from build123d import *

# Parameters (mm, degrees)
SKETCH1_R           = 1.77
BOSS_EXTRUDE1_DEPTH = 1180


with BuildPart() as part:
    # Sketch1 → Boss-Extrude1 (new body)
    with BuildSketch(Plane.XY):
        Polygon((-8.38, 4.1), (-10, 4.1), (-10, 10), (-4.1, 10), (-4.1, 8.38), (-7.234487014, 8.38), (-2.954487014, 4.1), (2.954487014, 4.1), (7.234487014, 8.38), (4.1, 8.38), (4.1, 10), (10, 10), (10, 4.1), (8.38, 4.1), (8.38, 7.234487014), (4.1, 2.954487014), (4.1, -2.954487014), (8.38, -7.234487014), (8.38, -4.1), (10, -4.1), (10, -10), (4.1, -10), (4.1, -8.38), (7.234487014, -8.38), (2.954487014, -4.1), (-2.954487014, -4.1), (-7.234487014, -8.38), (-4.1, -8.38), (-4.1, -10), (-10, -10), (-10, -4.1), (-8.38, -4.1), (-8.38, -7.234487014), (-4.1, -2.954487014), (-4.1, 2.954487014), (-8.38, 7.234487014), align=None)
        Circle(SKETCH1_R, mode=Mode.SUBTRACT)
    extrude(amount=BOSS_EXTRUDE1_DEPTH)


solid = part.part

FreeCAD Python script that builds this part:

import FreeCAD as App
import Part
import Sketcher

V = App.Vector
Q = App.Units.Quantity

doc = App.newDocument("Part")
body = doc.addObject("PartDesign::Body", "Body")

sketch1 = body.newObject("Sketcher::SketchObject", "Sketch")
sketch1.AttachmentSupport = (doc.getObject("XY_Plane"), [""])
sketch1.MapMode = "FlatFace"
sketch1.addGeometry(Part.LineSegment(V(-10, 4.1, 0), V(-8.4, 4.1, 0)), False)
sketch1.addGeometry(Part.LineSegment(V(-8.4, 4.1, 0), V(-8.4, 7.2, 0)), False)
sketch1.addGeometry(Part.LineSegment(V(-8.4, 7.2, 0), V(-4.1, 3, 0)), False)
sketch1.addGeometry(Part.LineSegment(V(-4.1, 3, 0), V(-4.1, -3, 0)), False)
sketch1.addGeometry(Part.LineSegment(V(-4.1, -3, 0), V(-8.4, -7.2, 0)), False)
sketch1.addGeometry(Part.LineSegment(V(-8.4, -7.2, 0), V(-8.4, -4.1, 0)), False)
sketch1.addGeometry(Part.LineSegment(V(-8.4, -4.1, 0), V(-10, -4.1, 0)), False)
sketch1.addGeometry(Part.LineSegment(V(-10, -4.1, 0), V(-10, -10, 0)), False)
sketch1.addGeometry(Part.LineSegment(V(-10, -10, 0), V(-4.1, -10, 0)), False)
sketch1.addGeometry(Part.LineSegment(V(-4.1, -10, 0), V(-4.1, -8.4, 0)), False)
sketch1.addGeometry(Part.LineSegment(V(-4.1, -8.4, 0), V(-7.2, -8.4, 0)), False)
sketch1.addGeometry(Part.LineSegment(V(-7.2, -8.4, 0), V(-3, -4.1, 0)), False)
sketch1.addGeometry(Part.LineSegment(V(-3, -4.1, 0), V(3, -4.1, 0)), False)
sketch1.addGeometry(Part.LineSegment(V(3, -4.1, 0), V(7.2, -8.4, 0)), False)
sketch1.addGeometry(Part.LineSegment(V(7.2, -8.4, 0), V(4.1, -8.4, 0)), False)
sketch1.addGeometry(Part.LineSegment(V(4.1, -8.4, 0), V(4.1, -10, 0)), False)
sketch1.addGeometry(Part.LineSegment(V(4.1, -10, 0), V(10, -10, 0)), False)
sketch1.addGeometry(Part.LineSegment(V(10, -10, 0), V(10, -4.1, 0)), False)
sketch1.addGeometry(Part.LineSegment(V(10, -4.1, 0), V(8.4, -4.1, 0)), False)
sketch1.addGeometry(Part.LineSegment(V(8.4, -4.1, 0), V(8.4, -7.2, 0)), False)
sketch1.addGeometry(Part.LineSegment(V(8.4, -7.2, 0), V(4.1, -3, 0)), False)
sketch1.addGeometry(Part.LineSegment(V(4.1, -3, 0), V(4.1, 3, 0)), False)
sketch1.addGeometry(Part.LineSegment(V(4.1, 3, 0), V(8.4, 7.2, 0)), False)
sketch1.addGeometry(Part.LineSegment(V(8.4, 7.2, 0), V(8.4, 4.1, 0)), False)
sketch1.addGeometry(Part.LineSegment(V(8.4, 4.1, 0), V(10, 4.1, 0)), False)
sketch1.addGeometry(Part.LineSegment(V(10, 4.1, 0), V(10, 10, 0)), False)
sketch1.addGeometry(Part.LineSegment(V(10, 10, 0), V(4.1, 10, 0)), False)
sketch1.addGeometry(Part.LineSegment(V(4.1, 10, 0), V(4.1, 8.4, 0)), False)
sketch1.addGeometry(Part.LineSegment(V(4.1, 8.4, 0), V(7.2, 8.4, 0)), False)
sketch1.addGeometry(Part.LineSegment(V(7.2, 8.4, 0), V(3, 4.1, 0)), False)
sketch1.addGeometry(Part.LineSegment(V(3, 4.1, 0), V(-3, 4.1, 0)), False)
sketch1.addGeometry(Part.LineSegment(V(-3, 4.1, 0), V(-7.2, 8.4, 0)), False)
sketch1.addGeometry(Part.LineSegment(V(-7.2, 8.4, 0), V(-4.1, 8.4, 0)), False)
sketch1.addGeometry(Part.LineSegment(V(-4.1, 8.4, 0), V(-4.1, 10, 0)), False)
sketch1.addGeometry(Part.LineSegment(V(-4.1, 10, 0), V(-10, 10, 0)), False)
sketch1.addGeometry(Part.LineSegment(V(-10, 10, 0), V(-10, 4.1, 0)), False)
sketch1.addGeometry(Part.Circle(V(0, 0, 0), V(0, 0, 1), 1.8), False)
sketch1.addConstraint(Sketcher.Constraint("Coincident", 0, 2, 1, 1))
sketch1.addConstraint(Sketcher.Constraint("Coincident", 1, 2, 2, 1))
sketch1.addConstraint(Sketcher.Constraint("Coincident", 2, 2, 3, 1))
sketch1.addConstraint(Sketcher.Constraint("Coincident", 3, 2, 4, 1))
sketch1.addConstraint(Sketcher.Constraint("Coincident", 4, 2, 5, 1))
sketch1.addConstraint(Sketcher.Constraint("Coincident", 5, 2, 6, 1))
sketch1.addConstraint(Sketcher.Constraint("Coincident", 6, 2, 7, 1))
sketch1.addConstraint(Sketcher.Constraint("Coincident", 7, 2, 8, 1))
sketch1.addConstraint(Sketcher.Constraint("Coincident", 8, 2, 9, 1))
sketch1.addConstraint(Sketcher.Constraint("Coincident", 9, 2, 10, 1))
sketch1.addConstraint(Sketcher.Constraint("Coincident", 10, 2, 11, 1))
sketch1.addConstraint(Sketcher.Constraint("Coincident", 11, 2, 12, 1))
sketch1.addConstraint(Sketcher.Constraint("Coincident", 12, 2, 13, 1))
sketch1.addConstraint(Sketcher.Constraint("Coincident", 13, 2, 14, 1))
sketch1.addConstraint(Sketcher.Constraint("Coincident", 14, 2, 15, 1))
sketch1.addConstraint(Sketcher.Constraint("Coincident", 15, 2, 16, 1))
sketch1.addConstraint(Sketcher.Constraint("Coincident", 16, 2, 17, 1))
sketch1.addConstraint(Sketcher.Constraint("Coincident", 17, 2, 18, 1))
sketch1.addConstraint(Sketcher.Constraint("Coincident", 18, 2, 19, 1))
sketch1.addConstraint(Sketcher.Constraint("Coincident", 19, 2, 20, 1))
sketch1.addConstraint(Sketcher.Constraint("Coincident", 20, 2, 21, 1))
sketch1.addConstraint(Sketcher.Constraint("Coincident", 21, 2, 22, 1))
sketch1.addConstraint(Sketcher.Constraint("Coincident", 22, 2, 23, 1))
sketch1.addConstraint(Sketcher.Constraint("Coincident", 23, 2, 24, 1))
sketch1.addConstraint(Sketcher.Constraint("Coincident", 24, 2, 25, 1))
sketch1.addConstraint(Sketcher.Constraint("Coincident", 25, 2, 26, 1))
sketch1.addConstraint(Sketcher.Constraint("Coincident", 26, 2, 27, 1))
sketch1.addConstraint(Sketcher.Constraint("Coincident", 27, 2, 28, 1))
sketch1.addConstraint(Sketcher.Constraint("Coincident", 28, 2, 29, 1))
sketch1.addConstraint(Sketcher.Constraint("Coincident", 29, 2, 30, 1))
sketch1.addConstraint(Sketcher.Constraint("Coincident", 30, 2, 31, 1))
sketch1.addConstraint(Sketcher.Constraint("Coincident", 31, 2, 32, 1))
sketch1.addConstraint(Sketcher.Constraint("Coincident", 32, 2, 33, 1))
sketch1.addConstraint(Sketcher.Constraint("Coincident", 33, 2, 34, 1))
sketch1.addConstraint(Sketcher.Constraint("Coincident", 34, 2, 35, 1))
sketch1.addConstraint(Sketcher.Constraint("Coincident", 35, 2, 0, 1))
sketch1.addConstraint(Sketcher.Constraint("Horizontal", 0))
sketch1.addConstraint(Sketcher.Constraint("Vertical", 1))
sketch1.addConstraint(Sketcher.Constraint("Vertical", 3))
sketch1.addConstraint(Sketcher.Constraint("Vertical", 5))
sketch1.addConstraint(Sketcher.Constraint("Horizontal", 6))
sketch1.addConstraint(Sketcher.Constraint("Vertical", 7))
sketch1.addConstraint(Sketcher.Constraint("Horizontal", 8))
sketch1.addConstraint(Sketcher.Constraint("Vertical", 9))
sketch1.addConstraint(Sketcher.Constraint("Horizontal", 10))
sketch1.addConstraint(Sketcher.Constraint("Horizontal", 12))
sketch1.addConstraint(Sketcher.Constraint("Horizontal", 14))
sketch1.addConstraint(Sketcher.Constraint("Vertical", 15))
sketch1.addConstraint(Sketcher.Constraint("Horizontal", 16))
sketch1.addConstraint(Sketcher.Constraint("Vertical", 17))
sketch1.addConstraint(Sketcher.Constraint("Horizontal", 18))
sketch1.addConstraint(Sketcher.Constraint("Vertical", 19))
sketch1.addConstraint(Sketcher.Constraint("Vertical", 21))
sketch1.addConstraint(Sketcher.Constraint("Vertical", 23))
sketch1.addConstraint(Sketcher.Constraint("Horizontal", 24))
sketch1.addConstraint(Sketcher.Constraint("Vertical", 25))
sketch1.addConstraint(Sketcher.Constraint("Horizontal", 26))
sketch1.addConstraint(Sketcher.Constraint("Vertical", 27))
sketch1.addConstraint(Sketcher.Constraint("Horizontal", 28))
sketch1.addConstraint(Sketcher.Constraint("Horizontal", 30))
sketch1.addConstraint(Sketcher.Constraint("Horizontal", 32))
sketch1.addConstraint(Sketcher.Constraint("Vertical", 33))
sketch1.addConstraint(Sketcher.Constraint("Horizontal", 34))
sketch1.addConstraint(Sketcher.Constraint("Vertical", 35))
sketch1.addConstraint(Sketcher.Constraint("Coincident", 36, 3, -1, 1))
sketch1.addConstraint(Sketcher.Constraint("Symmetric", 0, 2, 18, 2, -1, 1))
sketch1.addConstraint(Sketcher.Constraint("Symmetric", 2, 2, 20, 2, -1, 1))
sketch1.addConstraint(Sketcher.Constraint("Symmetric", 4, 2, 22, 2, -1, 1))
sketch1.addConstraint(Sketcher.Constraint("Symmetric", 6, 2, 24, 2, -1, 1))
sketch1.addConstraint(Sketcher.Constraint("Symmetric", 8, 2, 26, 2, -1, 1))
sketch1.addConstraint(Sketcher.Constraint("Symmetric", 10, 2, 28, 2, -1, 1))
sketch1.addConstraint(Sketcher.Constraint("Symmetric", 11, 2, 29, 2, -1, 1))
sketch1.addConstraint(Sketcher.Constraint("Symmetric", 13, 2, 31, 2, -1, 1))
sketch1.addConstraint(Sketcher.Constraint("Symmetric", 15, 2, 33, 2, -1, 1))
sketch1.addConstraint(Sketcher.Constraint("Symmetric", 10, 2, 13, 2, -2))
sketch1.addConstraint(Sketcher.Constraint("Symmetric", 8, 2, 15, 2, -2))
sketch1.addConstraint(Sketcher.Constraint("Symmetric", 6, 2, 17, 2, -2))
sketch1.addConstraint(Sketcher.Constraint("Symmetric", 4, 2, 19, 2, -2))
sketch1.addConstraint(Sketcher.Constraint("Perpendicular", 2, 4))
sketch1.addConstraint(Sketcher.Constraint("Parallel", 4, 11))
sketch1.addConstraint(Sketcher.Constraint("Perpendicular", 11, 13))
sketch1.addConstraint(Sketcher.Constraint("Parallel", 13, 20))
sketch1.addConstraint(Sketcher.Constraint("Perpendicular", 20, 22))
sketch1.addConstraint(Sketcher.Constraint("Perpendicular", 29, 31))
sketch1.addConstraint(Sketcher.Constraint("Horizontal", 6, 2, 11, 2))
sketch1.addConstraint(Sketcher.Constraint("Horizontal", 3, 2, 20, 2))
sketch1.addConstraint(Sketcher.Constraint("Vertical", 3, 2, 8, 2))
sketch1.addConstraint(Sketcher.Constraint("Vertical", 7, 2, 34, 2))
sketch1.addConstraint(Sketcher.Constraint("Equal", 32, 1))
sketch1.addConstraint(Sketcher.Constraint("Equal", 30, 3))
sketch1.addConstraint(Sketcher.Constraint("Equal", 34, 7))
sketch1.addConstraint(Sketcher.Constraint("Equal", 24, 9))
sketch1.addConstraint(Sketcher.Constraint("Diameter", 36, Q("3.54 mm")))
sketch1.addConstraint(Sketcher.Constraint("DistanceX", 8, 1, 8, 2, Q("5.9 mm")))
sketch1.addConstraint(Sketcher.Constraint("DistanceX", 6, 2, -1, 1, Q("10 mm")))
sketch1.addConstraint(Sketcher.Constraint("DistanceX", 0, 1, 0, 2, Q("1.62 mm")))
sketch1.addConstraint(Sketcher.Constraint("DistanceX", 10, 2, 10, 1, Q("3.134487 mm")))
pad1 = body.newObject("PartDesign::Pad", "Pad")
pad1.Profile = sketch1
pad1.Length = 1180

doc.recompute()
